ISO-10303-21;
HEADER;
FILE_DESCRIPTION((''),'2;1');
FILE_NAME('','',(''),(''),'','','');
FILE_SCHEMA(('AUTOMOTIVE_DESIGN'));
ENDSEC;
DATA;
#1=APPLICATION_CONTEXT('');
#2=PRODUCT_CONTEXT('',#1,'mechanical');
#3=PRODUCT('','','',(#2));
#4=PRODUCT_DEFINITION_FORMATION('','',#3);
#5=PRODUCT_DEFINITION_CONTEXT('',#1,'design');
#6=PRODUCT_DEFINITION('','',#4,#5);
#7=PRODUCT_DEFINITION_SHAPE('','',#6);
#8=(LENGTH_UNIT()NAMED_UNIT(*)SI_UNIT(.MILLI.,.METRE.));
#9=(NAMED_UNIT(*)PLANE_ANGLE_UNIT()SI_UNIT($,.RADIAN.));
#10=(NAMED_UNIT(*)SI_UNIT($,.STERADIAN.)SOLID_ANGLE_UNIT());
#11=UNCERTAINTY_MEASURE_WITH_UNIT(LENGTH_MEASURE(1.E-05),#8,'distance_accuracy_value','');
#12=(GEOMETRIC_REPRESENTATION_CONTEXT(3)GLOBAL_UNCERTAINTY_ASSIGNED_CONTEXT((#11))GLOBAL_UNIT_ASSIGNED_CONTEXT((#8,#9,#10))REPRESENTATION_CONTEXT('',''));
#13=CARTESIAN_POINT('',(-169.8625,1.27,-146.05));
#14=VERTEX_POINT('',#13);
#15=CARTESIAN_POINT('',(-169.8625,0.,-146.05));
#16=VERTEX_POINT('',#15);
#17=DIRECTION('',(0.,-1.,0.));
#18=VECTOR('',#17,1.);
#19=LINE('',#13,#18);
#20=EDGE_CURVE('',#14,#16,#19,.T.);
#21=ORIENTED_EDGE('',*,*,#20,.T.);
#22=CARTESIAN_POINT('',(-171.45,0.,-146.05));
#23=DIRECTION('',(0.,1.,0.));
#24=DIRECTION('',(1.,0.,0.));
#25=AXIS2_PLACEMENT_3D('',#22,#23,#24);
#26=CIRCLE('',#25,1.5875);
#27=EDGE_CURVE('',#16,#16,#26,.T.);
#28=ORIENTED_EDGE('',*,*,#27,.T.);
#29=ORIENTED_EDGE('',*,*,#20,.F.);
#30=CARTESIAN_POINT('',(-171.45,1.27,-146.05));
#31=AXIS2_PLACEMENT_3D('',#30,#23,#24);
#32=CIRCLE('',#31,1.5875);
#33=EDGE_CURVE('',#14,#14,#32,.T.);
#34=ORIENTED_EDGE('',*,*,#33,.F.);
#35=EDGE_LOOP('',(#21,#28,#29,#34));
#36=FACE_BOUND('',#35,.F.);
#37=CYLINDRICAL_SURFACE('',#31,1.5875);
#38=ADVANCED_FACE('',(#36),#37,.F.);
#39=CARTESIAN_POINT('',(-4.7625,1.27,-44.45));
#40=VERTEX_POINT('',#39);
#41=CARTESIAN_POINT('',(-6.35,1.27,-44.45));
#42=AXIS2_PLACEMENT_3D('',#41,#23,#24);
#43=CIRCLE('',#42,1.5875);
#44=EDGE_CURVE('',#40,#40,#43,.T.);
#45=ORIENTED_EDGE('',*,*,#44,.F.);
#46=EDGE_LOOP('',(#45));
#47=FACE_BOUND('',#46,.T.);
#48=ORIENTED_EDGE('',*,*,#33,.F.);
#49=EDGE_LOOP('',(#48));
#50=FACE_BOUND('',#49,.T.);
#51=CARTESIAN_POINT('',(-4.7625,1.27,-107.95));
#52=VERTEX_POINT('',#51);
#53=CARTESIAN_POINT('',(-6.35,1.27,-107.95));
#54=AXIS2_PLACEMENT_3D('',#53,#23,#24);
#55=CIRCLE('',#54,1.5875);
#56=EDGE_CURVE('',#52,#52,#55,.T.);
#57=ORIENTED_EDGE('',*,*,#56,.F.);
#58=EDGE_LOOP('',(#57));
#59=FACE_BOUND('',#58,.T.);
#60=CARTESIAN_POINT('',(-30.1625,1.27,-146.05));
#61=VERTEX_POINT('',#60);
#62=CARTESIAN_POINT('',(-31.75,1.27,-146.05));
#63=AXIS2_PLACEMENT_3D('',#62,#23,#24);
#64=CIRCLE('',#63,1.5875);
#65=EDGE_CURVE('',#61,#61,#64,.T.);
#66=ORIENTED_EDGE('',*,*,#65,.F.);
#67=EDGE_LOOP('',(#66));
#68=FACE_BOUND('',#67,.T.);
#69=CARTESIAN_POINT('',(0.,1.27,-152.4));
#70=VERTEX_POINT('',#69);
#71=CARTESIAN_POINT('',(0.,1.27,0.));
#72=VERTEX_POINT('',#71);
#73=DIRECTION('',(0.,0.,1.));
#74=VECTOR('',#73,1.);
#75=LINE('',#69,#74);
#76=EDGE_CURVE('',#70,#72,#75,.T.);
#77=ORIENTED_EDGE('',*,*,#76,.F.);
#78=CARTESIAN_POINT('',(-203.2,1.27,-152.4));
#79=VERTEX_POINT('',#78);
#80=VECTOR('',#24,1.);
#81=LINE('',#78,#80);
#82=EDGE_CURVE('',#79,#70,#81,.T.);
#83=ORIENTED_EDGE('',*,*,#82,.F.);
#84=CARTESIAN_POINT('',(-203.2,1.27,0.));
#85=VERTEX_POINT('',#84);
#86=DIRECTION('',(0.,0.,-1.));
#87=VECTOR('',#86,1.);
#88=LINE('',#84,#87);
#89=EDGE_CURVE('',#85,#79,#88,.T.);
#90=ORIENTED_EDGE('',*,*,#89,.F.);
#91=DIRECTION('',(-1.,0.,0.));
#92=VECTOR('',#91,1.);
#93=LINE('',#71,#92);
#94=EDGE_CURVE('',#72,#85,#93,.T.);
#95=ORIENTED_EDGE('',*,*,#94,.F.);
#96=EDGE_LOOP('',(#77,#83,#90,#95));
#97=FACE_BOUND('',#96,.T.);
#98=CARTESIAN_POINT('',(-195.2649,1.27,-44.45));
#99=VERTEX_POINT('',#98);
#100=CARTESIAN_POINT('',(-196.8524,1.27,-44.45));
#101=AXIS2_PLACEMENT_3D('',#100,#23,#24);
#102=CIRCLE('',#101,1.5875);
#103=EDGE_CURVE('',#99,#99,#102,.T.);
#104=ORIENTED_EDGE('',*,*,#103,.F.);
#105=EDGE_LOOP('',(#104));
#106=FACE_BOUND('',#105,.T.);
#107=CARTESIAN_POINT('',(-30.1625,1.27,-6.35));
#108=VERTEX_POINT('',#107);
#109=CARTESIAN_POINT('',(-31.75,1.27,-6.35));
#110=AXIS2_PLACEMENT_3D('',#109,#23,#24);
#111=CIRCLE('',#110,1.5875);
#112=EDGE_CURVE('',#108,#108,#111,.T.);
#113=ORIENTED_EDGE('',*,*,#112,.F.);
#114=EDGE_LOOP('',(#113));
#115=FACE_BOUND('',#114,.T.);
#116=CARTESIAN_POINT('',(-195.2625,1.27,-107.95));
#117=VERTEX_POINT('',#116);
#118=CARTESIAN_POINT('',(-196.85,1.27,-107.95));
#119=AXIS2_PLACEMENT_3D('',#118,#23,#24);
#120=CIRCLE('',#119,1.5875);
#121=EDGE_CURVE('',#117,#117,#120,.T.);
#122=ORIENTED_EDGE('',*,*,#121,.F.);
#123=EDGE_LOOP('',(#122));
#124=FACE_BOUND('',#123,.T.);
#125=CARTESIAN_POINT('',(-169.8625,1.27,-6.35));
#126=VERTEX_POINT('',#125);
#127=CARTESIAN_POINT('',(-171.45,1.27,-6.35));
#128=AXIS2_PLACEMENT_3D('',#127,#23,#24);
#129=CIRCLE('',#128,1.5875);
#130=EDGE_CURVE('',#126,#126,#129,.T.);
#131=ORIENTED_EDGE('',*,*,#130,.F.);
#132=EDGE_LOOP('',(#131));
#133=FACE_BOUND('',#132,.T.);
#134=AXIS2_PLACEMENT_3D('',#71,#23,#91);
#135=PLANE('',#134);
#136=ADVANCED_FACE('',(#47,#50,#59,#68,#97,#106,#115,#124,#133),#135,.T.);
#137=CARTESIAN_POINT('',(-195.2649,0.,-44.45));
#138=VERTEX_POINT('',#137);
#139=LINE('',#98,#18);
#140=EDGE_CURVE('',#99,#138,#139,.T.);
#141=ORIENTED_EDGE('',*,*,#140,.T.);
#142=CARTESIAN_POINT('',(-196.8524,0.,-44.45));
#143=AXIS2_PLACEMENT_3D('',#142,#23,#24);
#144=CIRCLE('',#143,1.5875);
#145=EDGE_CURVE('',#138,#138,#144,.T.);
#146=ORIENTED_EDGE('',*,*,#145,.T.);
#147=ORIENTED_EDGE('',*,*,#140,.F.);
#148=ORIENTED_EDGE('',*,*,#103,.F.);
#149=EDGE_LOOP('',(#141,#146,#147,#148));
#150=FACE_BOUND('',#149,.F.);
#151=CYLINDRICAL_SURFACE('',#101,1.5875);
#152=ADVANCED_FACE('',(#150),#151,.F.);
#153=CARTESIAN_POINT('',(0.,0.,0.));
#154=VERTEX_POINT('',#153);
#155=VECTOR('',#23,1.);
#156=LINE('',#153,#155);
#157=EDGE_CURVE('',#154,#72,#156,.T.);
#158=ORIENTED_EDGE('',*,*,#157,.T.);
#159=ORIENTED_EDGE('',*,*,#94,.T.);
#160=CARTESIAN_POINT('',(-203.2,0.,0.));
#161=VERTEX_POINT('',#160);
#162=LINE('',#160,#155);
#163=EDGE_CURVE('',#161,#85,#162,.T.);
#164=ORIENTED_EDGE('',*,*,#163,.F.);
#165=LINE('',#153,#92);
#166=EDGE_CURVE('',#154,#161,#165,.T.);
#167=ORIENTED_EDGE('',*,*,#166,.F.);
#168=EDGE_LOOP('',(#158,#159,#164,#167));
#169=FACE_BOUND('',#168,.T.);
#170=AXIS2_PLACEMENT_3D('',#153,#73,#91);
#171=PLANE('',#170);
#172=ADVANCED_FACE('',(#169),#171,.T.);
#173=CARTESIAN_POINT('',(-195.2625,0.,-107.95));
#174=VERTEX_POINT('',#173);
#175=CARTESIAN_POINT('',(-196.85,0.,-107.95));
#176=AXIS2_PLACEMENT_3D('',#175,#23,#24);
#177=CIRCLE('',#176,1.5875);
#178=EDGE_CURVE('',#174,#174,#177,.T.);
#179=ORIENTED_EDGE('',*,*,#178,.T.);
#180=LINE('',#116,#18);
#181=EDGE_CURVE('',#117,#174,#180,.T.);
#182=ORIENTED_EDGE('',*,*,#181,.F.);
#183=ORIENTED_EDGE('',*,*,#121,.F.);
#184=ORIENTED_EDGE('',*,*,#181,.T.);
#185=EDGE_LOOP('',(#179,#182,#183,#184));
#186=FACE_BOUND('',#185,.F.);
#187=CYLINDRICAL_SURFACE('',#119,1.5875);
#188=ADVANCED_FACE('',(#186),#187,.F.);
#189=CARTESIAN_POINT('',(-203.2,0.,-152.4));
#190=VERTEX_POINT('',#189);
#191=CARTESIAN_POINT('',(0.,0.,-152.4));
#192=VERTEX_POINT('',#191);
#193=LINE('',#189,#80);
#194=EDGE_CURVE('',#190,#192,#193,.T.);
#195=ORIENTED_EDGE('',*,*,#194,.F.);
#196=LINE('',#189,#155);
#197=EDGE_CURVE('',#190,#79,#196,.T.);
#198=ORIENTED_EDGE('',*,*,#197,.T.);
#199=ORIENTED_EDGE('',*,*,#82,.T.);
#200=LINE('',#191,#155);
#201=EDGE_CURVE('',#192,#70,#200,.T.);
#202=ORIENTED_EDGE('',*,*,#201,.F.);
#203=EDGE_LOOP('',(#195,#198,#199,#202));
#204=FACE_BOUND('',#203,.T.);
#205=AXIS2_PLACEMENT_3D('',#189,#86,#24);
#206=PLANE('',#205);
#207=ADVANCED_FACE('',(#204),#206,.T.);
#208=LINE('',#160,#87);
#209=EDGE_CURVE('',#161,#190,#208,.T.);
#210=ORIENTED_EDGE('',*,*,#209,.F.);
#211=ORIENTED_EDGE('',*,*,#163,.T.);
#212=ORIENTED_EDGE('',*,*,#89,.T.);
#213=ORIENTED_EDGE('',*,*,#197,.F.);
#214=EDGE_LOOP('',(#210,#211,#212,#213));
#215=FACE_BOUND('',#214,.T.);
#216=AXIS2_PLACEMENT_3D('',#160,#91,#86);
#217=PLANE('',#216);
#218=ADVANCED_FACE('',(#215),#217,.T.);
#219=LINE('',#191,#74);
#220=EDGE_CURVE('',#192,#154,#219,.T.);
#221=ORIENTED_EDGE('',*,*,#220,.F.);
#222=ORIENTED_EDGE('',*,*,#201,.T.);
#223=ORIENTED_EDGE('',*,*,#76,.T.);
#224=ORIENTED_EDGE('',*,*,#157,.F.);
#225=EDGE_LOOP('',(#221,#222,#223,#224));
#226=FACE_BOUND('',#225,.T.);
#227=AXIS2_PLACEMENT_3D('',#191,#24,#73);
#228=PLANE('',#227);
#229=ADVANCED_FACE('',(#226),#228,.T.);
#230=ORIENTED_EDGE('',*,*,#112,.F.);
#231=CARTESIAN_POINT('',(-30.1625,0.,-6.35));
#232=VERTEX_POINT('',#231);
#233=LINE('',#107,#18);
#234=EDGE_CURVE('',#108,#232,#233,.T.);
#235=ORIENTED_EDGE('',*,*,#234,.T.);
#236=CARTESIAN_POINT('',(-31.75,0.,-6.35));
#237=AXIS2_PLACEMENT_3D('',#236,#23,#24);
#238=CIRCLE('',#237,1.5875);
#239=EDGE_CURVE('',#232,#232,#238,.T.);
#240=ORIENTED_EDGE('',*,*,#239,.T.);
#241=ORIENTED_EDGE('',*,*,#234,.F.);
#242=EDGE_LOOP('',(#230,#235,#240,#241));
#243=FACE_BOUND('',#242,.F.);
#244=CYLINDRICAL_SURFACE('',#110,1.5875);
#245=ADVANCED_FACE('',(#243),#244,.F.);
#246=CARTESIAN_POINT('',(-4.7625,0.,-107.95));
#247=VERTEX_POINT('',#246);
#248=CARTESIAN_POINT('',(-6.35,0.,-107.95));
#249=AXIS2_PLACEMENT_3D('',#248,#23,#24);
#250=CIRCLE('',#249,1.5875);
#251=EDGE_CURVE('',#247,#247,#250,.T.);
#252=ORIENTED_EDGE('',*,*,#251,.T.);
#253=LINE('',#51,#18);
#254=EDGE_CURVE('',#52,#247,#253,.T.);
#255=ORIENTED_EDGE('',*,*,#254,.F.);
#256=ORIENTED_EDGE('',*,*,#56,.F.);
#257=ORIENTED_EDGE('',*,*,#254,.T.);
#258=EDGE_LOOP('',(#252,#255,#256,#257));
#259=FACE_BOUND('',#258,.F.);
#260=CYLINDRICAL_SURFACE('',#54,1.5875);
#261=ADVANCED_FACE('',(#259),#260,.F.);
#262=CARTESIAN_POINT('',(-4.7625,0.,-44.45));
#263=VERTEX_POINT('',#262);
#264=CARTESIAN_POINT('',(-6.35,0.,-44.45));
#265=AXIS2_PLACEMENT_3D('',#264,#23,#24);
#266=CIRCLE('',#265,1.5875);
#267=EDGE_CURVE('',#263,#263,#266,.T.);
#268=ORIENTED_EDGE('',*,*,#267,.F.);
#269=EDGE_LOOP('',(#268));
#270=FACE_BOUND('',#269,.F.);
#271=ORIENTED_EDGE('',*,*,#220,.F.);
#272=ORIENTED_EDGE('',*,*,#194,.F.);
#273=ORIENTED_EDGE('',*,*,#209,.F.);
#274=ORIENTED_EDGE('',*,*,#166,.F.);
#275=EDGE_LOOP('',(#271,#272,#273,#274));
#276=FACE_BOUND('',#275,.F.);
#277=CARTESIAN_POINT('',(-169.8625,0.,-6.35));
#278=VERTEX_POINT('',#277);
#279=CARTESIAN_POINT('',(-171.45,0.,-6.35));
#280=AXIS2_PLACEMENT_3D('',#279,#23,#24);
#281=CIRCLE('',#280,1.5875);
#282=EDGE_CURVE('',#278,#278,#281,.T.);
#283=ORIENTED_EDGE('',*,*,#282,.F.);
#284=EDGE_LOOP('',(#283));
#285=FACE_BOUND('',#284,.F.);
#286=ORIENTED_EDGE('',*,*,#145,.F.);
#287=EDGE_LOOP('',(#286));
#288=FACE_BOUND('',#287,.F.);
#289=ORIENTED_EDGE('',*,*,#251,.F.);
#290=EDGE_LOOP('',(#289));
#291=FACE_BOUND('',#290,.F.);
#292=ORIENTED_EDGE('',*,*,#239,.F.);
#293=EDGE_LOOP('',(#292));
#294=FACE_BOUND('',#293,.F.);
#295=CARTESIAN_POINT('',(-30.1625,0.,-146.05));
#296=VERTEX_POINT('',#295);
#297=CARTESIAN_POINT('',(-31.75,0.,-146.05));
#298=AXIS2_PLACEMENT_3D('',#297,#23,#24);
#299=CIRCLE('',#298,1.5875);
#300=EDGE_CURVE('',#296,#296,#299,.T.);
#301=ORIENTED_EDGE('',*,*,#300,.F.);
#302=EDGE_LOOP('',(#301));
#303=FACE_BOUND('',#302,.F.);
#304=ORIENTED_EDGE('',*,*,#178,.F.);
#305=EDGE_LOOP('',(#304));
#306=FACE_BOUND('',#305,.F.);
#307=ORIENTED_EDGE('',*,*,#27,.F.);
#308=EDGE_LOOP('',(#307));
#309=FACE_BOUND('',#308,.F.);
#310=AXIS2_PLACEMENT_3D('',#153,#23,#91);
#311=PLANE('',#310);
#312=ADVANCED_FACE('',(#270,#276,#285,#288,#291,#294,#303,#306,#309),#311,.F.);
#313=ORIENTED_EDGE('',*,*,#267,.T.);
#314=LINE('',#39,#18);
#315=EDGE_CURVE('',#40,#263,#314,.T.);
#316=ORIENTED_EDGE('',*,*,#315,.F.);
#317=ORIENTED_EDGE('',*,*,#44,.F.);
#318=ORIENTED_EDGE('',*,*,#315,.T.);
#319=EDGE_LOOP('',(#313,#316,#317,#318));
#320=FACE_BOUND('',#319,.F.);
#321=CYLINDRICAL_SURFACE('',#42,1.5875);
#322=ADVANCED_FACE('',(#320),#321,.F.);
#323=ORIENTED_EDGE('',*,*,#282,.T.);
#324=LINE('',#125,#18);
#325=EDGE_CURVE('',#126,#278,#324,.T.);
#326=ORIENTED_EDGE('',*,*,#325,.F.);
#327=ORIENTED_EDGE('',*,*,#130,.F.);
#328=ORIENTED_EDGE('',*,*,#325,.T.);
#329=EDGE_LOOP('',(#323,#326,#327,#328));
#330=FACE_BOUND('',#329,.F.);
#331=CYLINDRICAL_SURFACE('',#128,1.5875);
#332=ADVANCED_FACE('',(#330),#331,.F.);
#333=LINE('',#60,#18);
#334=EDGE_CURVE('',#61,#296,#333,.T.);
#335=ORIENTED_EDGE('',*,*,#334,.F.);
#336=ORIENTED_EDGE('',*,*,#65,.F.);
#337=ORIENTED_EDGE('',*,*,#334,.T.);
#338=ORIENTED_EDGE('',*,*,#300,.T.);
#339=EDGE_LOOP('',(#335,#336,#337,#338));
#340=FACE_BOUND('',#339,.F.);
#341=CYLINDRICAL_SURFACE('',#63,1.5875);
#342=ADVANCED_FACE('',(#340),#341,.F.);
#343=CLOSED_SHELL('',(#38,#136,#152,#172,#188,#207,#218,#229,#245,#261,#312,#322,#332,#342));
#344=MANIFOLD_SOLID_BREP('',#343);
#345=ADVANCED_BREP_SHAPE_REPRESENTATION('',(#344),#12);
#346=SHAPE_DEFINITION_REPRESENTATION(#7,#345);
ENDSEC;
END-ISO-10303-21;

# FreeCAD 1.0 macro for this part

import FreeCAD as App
import Part
import Sketcher

V = App.Vector
Q = App.Units.Quantity

doc = App.newDocument("Part")
body = doc.addObject("PartDesign::Body", "Body")

# Sketch on XZ plane
sketch1 = body.newObject("Sketcher::SketchObject", "Sketch")
sketch1.AttachmentSupport = (doc.getObject("XZ_Plane"), [""])
sketch1.MapMode = "FlatFace"
sketch1.addGeometry([
    Part.LineSegment(V(-203.2, 0, 0), V(0, 0, 0)),
    Part.LineSegment(V(0, 0, 0), V(0, -152.4, 0)),
    Part.LineSegment(V(0, -152.4, 0), V(-203.2, -152.4, 0)),
    Part.LineSegment(V(-203.2, -152.4, 0), V(-203.2, 0, 0)),
], False)
sketch1.addConstraint([
    Sketcher.Constraint("Coincident", 0, 2, 1, 1),
    Sketcher.Constraint("Coincident", 1, 2, 2, 1),
    Sketcher.Constraint("Coincident", 2, 2, 3, 1),
    Sketcher.Constraint("Coincident", 3, 2, 0, 1),
    Sketcher.Constraint("Horizontal", 0),
    Sketcher.Constraint("Vertical", 1),
    Sketcher.Constraint("Horizontal", 2),
    Sketcher.Constraint("Vertical", 3),
    Sketcher.Constraint("Coincident", 0, 2, -1, 1),
    Sketcher.Constraint("DistanceX", 0, 1, 0, 2, Q("8 in")),
    Sketcher.Constraint("DistanceY", 1, 2, 1, 1, Q("6 in")),
])
pad1 = body.newObject("PartDesign::Pad", "Pad")
pad1.Profile = sketch1
pad1.Length = Q("0.05 in")
pad1.Reversed = True

# Sketch on XZ plane
sketch2 = body.newObject("Sketcher::SketchObject", "Sketch001")
sketch2.AttachmentSupport = (doc.getObject("XZ_Plane"), [""])
sketch2.MapMode = "FlatFace"
sketch2.AttachmentOffset = App.Placement(V(0, 0, -0.05 * 25.4), App.Rotation())
sketch2.addGeometry([
    Part.Circle(V(-171.45, -6.35, 0), V(0, 0, 1), 1.5875),  # 0
    Part.Circle(V(-196.8524, -44.45, 0), V(0, 0, 1), 1.5875),  # 1
    Part.Circle(V(-31.75, -6.35, 0), V(0, 0, 1), 1.5875),  # 2
    Part.Circle(V(-6.35, -44.45, 0), V(0, 0, 1), 1.5875),  # 3
    Part.Circle(V(-6.35, -107.95, 0), V(0, 0, 1), 1.5875),  # 4
    Part.Circle(V(-31.75, -146.05, 0), V(0, 0, 1), 1.5875),  # 5
    Part.Circle(V(-171.45, -146.05, 0), V(0, 0, 1), 1.5875),  # 6
    Part.Circle(V(-196.85, -107.95, 0), V(0, 0, 1), 1.5875),  # 7
], False)
sketch2.addConstraint([
    Sketcher.Constraint("Equal", 0, 1),
    Sketcher.Constraint("Equal", 1, 2),
    Sketcher.Constraint("Equal", 2, 3),
    Sketcher.Constraint("Equal", 3, 4),
    Sketcher.Constraint("Equal", 4, 5),
    Sketcher.Constraint("Equal", 5, 6),
    Sketcher.Constraint("Equal", 6, 7),
    Sketcher.Constraint("Horizontal", 0, 3, 2, 3),
    Sketcher.Constraint("Horizontal", 1, 3, 3, 3),
    Sketcher.Constraint("Horizontal", 5, 3, 6, 3),
    Sketcher.Constraint("Horizontal", 4, 3, 7, 3),
    Sketcher.Constraint("Vertical", 3, 3, 4, 3),
    Sketcher.Constraint("Vertical", 2, 3, 5, 3),
    Sketcher.Constraint("Vertical", 0, 3, 6, 3),
    Sketcher.Constraint("Diameter", 0, Q("0.125 in")),
    Sketcher.Constraint("DistanceY", 0, 3, -1, 1, Q("0.25 in")),
    Sketcher.Constraint("DistanceY", 1, 3, -1, 1, Q("1.75 in")),
    Sketcher.Constraint("DistanceX", 2, 3, -1, 1, Q("1.25 in")),
    Sketcher.Constraint("DistanceX", 3, 3, -1, 1, Q("0.25 in")),
    Sketcher.Constraint("DistanceY", 4, 3, 2, 3, Q("4 in")),
    Sketcher.Constraint("DistanceY", 5, 3, 3, 3, Q("4 in")),
    Sketcher.Constraint("DistanceX", 7, 3, 6, 3, Q("1 in")),
    Sketcher.Constraint("DistanceX", 0, 3, 2, 3, Q("5.5 in")),
    Sketcher.Constraint("DistanceX", 1, 3, -1, 1, Q("7.7501 in")),
])
pocket1 = body.newObject("PartDesign::Pocket", "Pocket")
pocket1.Profile = sketch2
pocket1.Length = Q("1 in")
pocket1.Reversed = True

doc.recompute()
